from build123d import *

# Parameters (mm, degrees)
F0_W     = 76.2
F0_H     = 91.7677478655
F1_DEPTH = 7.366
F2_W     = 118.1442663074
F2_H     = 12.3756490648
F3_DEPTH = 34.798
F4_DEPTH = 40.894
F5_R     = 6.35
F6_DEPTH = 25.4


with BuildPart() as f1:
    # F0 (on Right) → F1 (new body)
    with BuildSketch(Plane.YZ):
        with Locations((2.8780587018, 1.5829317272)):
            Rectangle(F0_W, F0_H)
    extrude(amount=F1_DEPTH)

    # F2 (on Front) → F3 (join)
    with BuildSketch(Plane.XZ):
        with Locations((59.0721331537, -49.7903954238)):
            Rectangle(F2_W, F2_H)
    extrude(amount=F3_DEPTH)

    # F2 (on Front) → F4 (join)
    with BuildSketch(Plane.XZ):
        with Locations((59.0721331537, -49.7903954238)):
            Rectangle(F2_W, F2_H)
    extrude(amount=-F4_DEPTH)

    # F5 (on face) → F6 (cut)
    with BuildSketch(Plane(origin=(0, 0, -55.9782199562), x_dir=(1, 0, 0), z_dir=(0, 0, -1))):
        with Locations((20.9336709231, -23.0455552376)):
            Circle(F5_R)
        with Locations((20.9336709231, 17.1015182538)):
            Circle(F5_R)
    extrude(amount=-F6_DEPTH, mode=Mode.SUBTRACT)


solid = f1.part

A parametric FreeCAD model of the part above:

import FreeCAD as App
import Part
import Sketcher

V = App.Vector
Q = App.Units.Quantity

doc = App.newDocument("Part")
params = doc.addObject("Spreadsheet::Sheet", "Params")
for row, (alias, value) in enumerate([
    ("sketch1_width", "3 in"),
    ("pad1_length", "0.29 in"),
    ("pad2_length", "1.37 in"),
    ("pad3_length", "1.61 in"),
    ("sketch4_diameter", "0.5 in"),
    ("pocket1_length", "1 in"),
], start=1):
    params.set(f"A{row}", alias)
    params.set(f"B{row}", "=" + value)
    params.setAlias(f"B{row}", alias)

body = doc.addObject("PartDesign::Body", "Body")

# Sketch on YZ plane
sketch1 = doc.addObject("Sketcher::SketchObject", "Sketch")
body.addObject(sketch1)
sketch1.AttachmentSupport = (doc.YZ_Plane, [""])
sketch1.MapMode = "FlatFace"
sketch1.addGeometry([
    Part.LineSegment(V(-35, 47, 0), V(-35, -44, 0)),
    Part.LineSegment(V(-35, -44, 0), V(41, -44, 0)),
    Part.LineSegment(V(41, -44, 0), V(41, 47, 0)),
    Part.LineSegment(V(41, 47, 0), V(-35, 47, 0)),
], False)
sketch1.addConstraint([
    Sketcher.Constraint("Coincident", 0, 2, 1, 1),
    Sketcher.Constraint("Coincident", 1, 2, 2, 1),
    Sketcher.Constraint("Coincident", 2, 2, 3, 1),
    Sketcher.Constraint("Coincident", 3, 2, 0, 1),
    Sketcher.Constraint("Vertical", 0),
    Sketcher.Constraint("Horizontal", 1),
    Sketcher.Constraint("Vertical", 2),
    Sketcher.Constraint("Horizontal", 3),
    Sketcher.Constraint("DistanceX", 1, 1, 1, 2, Q("3 in")),
    Sketcher.Constraint("DistanceY", 0, 2, 0, 1, Q("91.767748 mm")),
    Sketcher.Constraint("DistanceX", 0, 2, -1, 1, Q("35.221941 mm")),
    Sketcher.Constraint("DistanceY", 0, 2, -1, 1, Q("44.300942 mm")),
])
sketch1.setExpression("Constraints[8]", "Params.sketch1_width")
pad1 = doc.addObject("PartDesign::Pad", "Pad")
body.addObject(pad1)
pad1.Profile = sketch1
pad1.setExpression("Length", "Params.pad1_length")

# Sketch on XZ plane
sketch2 = doc.addObject("Sketcher::SketchObject", "Sketch001")
body.addObject(sketch2)
sketch2.AttachmentSupport = (doc.XZ_Plane, [""])
sketch2.MapMode = "FlatFace"
sketch2.addGeometry([
    Part.LineSegment(V(0, -44, 0), V(0, -56, 0)),
    Part.LineSegment(V(0, -56, 0), V(118, -56, 0)),
    Part.LineSegment(V(118, -56, 0), V(118, -44, 0)),
    Part.LineSegment(V(118, -44, 0), V(0, -44, 0)),
], False)
sketch2.addConstraint([
    Sketcher.Constraint("Coincident", 0, 2, 1, 1),
    Sketcher.Constraint("Coincident", 1, 2, 2, 1),
    Sketcher.Constraint("Coincident", 2, 2, 3, 1),
    Sketcher.Constraint("Coincident", 3, 2, 0, 1),
    Sketcher.Constraint("Vertical", 0),
    Sketcher.Constraint("Horizontal", 1),
    Sketcher.Constraint("Vertical", 2),
    Sketcher.Constraint("Horizontal", 3),
    Sketcher.Constraint("PointOnObject", 0, 2, -2),
    Sketcher.Constraint("DistanceY", 0, 2, 0, 1, Q("12.375649 mm")),
    Sketcher.Constraint("DistanceX", 1, 1, 1, 2, Q("118.144266 mm")),
    Sketcher.Constraint("DistanceY", 0, 2, -1, 1, Q("55.97822 mm")),
])
pad2 = doc.addObject("PartDesign::Pad", "Pad001")
body.addObject(pad2)
pad2.Profile = sketch2
pad2.setExpression("Length", "Params.pad2_length")

# Sketch on XZ plane
sketch3 = doc.addObject("Sketcher::SketchObject", "Sketch002")
body.addObject(sketch3)
sketch3.AttachmentSupport = (doc.XZ_Plane, [""])
sketch3.MapMode = "FlatFace"
sketch3.addGeometry([
    Part.LineSegment(V(0, -44, 0), V(0, -56, 0)),
    Part.LineSegment(V(0, -56, 0), V(118, -56, 0)),
    Part.LineSegment(V(118, -56, 0), V(118, -44, 0)),
    Part.LineSegment(V(118, -44, 0), V(0, -44, 0)),
], False)
sketch3.addConstraint([
    Sketcher.Constraint("Coincident", 0, 2, 1, 1),
    Sketcher.Constraint("Coincident", 1, 2, 2, 1),
    Sketcher.Constraint("Coincident", 2, 2, 3, 1),
    Sketcher.Constraint("Coincident", 3, 2, 0, 1),
    Sketcher.Constraint("Vertical", 0),
    Sketcher.Constraint("Horizontal", 1),
    Sketcher.Constraint("Vertical", 2),
    Sketcher.Constraint("Horizontal", 3),
    Sketcher.Constraint("PointOnObject", 0, 2, -2),
    Sketcher.Constraint("DistanceY", 0, 2, 0, 1, Q("12.375649 mm")),
    Sketcher.Constraint("DistanceX", 1, 1, 1, 2, Q("118.144266 mm")),
    Sketcher.Constraint("DistanceY", 0, 2, -1, 1, Q("55.97822 mm")),
])
pad3 = doc.addObject("PartDesign::Pad", "Pad002")
body.addObject(pad3)
pad3.Profile = sketch3
pad3.setExpression("Length", "Params.pad3_length")
pad3.Reversed = True

# Sketch on XY plane
sketch4 = doc.addObject("Sketcher::SketchObject", "Sketch003")
body.addObject(sketch4)
sketch4.AttachmentSupport = (doc.XY_Plane, [""])
sketch4.MapMode = "FlatFace"
sketch4.AttachmentOffset = App.Placement(V(0, 0, -55.97822), App.Rotation())
sketch4.addGeometry([
    Part.Circle(V(21, 23, 0), V(0, 0, 1), 6),
    Part.Circle(V(21, -17, 0), V(0, 0, 1), 6),
], False)
sketch4.addConstraint([
    Sketcher.Constraint("Equal", 0, 1),
    Sketcher.Constraint("Vertical", 0, 3, 1, 3),
    Sketcher.Constraint("Diameter", 0, Q("0.5 in")),
    Sketcher.Constraint("DistanceX", -1, 1, 0, 3, Q("20.933671 mm")),
    Sketcher.Constraint("DistanceY", 1, 3, -1, 1, Q("17.101518 mm")),
    Sketcher.Constraint("DistanceY", -1, 1, 0, 3, Q("23.045555 mm")),
])
sketch4.setExpression("Constraints[2]", "Params.sketch4_diameter")
pocket1 = doc.addObject("PartDesign::Pocket", "Pocket")
body.addObject(pocket1)
pocket1.Profile = sketch4
pocket1.setExpression("Length", "Params.pocket1_length")
pocket1.Reversed = True

doc.recompute()
